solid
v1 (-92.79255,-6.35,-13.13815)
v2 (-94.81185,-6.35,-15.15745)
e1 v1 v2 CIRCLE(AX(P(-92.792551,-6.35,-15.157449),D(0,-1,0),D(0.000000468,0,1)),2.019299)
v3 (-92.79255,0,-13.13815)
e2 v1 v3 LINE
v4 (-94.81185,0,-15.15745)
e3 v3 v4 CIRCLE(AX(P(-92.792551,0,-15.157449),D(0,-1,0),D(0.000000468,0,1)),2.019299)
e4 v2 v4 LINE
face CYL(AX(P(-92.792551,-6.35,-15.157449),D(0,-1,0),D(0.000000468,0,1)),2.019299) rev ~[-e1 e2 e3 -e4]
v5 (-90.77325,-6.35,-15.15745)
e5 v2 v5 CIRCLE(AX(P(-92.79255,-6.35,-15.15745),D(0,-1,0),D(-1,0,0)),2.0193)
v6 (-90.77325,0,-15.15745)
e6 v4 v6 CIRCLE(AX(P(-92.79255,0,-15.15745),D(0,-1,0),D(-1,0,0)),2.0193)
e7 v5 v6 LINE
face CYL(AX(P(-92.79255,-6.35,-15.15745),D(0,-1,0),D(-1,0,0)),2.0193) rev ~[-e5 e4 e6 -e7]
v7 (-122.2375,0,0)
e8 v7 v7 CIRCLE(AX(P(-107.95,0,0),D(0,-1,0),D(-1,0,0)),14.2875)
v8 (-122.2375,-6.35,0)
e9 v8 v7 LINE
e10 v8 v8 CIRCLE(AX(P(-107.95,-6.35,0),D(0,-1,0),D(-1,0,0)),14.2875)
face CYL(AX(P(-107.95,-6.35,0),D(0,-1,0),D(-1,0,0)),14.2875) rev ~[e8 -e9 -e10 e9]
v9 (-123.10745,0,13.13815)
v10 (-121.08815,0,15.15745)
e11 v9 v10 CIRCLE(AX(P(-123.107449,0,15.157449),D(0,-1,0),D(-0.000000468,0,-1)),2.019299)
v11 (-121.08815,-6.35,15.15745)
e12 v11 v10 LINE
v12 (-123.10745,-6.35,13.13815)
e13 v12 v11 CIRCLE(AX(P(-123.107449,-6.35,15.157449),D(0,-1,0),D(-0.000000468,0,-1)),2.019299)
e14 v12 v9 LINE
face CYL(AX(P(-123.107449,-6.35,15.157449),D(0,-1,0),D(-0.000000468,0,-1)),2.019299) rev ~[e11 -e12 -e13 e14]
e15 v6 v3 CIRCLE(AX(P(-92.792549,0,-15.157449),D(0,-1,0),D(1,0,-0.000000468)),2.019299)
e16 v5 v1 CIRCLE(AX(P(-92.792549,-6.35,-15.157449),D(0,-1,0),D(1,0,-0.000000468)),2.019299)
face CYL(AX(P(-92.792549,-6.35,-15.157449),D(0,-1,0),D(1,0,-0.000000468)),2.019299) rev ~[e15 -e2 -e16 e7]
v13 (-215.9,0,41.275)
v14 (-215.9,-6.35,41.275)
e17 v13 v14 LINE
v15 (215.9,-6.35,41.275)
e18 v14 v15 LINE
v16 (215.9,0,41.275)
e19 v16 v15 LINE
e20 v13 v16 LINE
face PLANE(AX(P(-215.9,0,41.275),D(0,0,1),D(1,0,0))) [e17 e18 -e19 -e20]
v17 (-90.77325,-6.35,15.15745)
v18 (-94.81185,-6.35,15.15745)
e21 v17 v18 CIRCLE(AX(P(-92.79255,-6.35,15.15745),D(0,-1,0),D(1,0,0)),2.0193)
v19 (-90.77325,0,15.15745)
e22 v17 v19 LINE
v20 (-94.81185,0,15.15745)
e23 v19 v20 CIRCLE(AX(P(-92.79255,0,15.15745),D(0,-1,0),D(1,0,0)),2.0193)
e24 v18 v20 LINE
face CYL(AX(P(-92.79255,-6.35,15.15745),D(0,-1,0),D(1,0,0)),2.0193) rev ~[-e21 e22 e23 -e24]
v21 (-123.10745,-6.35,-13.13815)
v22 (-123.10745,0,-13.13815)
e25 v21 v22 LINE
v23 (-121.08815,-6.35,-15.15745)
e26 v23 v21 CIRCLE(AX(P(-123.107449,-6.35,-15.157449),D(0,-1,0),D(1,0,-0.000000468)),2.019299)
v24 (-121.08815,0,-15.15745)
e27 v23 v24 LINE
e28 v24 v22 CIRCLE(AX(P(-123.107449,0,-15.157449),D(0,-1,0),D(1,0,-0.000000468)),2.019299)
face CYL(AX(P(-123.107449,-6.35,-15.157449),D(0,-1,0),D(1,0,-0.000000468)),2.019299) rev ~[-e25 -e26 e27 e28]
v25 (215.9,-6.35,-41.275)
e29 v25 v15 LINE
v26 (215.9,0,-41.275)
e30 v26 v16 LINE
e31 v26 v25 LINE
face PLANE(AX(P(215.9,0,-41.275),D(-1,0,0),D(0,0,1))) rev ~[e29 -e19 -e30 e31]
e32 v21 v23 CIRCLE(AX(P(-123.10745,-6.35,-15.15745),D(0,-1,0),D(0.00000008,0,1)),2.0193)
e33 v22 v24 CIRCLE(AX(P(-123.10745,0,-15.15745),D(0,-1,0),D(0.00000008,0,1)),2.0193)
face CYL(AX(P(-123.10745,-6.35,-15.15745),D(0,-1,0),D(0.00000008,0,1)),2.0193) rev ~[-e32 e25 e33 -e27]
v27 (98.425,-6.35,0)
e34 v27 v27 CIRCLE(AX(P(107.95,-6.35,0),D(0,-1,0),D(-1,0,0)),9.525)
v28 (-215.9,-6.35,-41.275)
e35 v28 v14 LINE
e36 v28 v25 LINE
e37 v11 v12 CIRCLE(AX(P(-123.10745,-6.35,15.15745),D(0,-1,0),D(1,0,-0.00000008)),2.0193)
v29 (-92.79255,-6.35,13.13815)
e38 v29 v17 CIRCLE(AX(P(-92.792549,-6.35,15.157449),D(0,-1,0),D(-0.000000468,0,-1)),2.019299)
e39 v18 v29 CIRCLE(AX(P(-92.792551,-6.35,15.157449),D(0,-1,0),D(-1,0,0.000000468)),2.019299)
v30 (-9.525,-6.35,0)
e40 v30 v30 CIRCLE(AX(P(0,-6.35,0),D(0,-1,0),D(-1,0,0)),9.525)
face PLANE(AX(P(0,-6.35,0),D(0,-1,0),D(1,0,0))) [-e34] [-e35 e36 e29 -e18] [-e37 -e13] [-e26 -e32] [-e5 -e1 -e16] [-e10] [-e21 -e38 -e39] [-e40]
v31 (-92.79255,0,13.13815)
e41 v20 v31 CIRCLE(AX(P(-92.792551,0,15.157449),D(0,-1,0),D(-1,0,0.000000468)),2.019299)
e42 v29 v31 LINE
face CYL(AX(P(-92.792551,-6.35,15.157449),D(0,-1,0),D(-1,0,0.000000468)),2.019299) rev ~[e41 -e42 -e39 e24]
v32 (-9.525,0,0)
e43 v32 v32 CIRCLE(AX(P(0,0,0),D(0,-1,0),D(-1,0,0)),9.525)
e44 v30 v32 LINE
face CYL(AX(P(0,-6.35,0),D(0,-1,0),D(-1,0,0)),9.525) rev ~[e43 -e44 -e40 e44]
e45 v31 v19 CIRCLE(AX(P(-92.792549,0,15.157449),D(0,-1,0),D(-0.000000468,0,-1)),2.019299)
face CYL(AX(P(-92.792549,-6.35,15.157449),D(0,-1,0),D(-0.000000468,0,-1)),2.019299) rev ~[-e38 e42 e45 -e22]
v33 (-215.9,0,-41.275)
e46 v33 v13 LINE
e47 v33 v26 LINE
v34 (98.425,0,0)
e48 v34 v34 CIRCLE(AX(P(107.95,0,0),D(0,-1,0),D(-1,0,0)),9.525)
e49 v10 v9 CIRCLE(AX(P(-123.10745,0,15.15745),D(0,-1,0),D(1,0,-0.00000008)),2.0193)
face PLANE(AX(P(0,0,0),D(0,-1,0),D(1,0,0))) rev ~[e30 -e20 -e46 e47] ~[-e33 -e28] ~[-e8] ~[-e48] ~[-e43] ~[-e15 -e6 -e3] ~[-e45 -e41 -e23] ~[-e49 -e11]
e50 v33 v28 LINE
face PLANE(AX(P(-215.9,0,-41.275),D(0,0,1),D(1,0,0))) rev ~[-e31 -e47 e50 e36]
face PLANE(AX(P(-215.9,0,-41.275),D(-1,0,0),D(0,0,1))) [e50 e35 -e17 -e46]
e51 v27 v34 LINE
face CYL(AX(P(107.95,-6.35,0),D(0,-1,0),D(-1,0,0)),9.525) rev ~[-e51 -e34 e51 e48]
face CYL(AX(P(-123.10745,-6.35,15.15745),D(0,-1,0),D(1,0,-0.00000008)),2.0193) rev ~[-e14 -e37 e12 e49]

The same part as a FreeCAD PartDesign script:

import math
import FreeCAD as App
import Part
import Sketcher
Q = App.Units.Quantity

doc = App.newDocument("Part")
body = doc.addObject("PartDesign::Body", "Body")

# Sketch on XZ plane
sketch1 = doc.addObject("Sketcher::SketchObject", "Sketch")
body.addObject(sketch1)
sketch1.AttachmentSupport = (doc.XZ_Plane, [""])
sketch1.MapMode = "FlatFace"
sketch1.addGeometry([
    Part.LineSegment(App.Vector(-215.9, 41.275, 0), App.Vector(-215.9, -41.275, 0)),
    Part.LineSegment(App.Vector(-215.9, -41.275, 0), App.Vector(215.9, -41.275, 0)),
    Part.LineSegment(App.Vector(215.9, -41.275, 0), App.Vector(215.9, 41.275, 0)),
    Part.LineSegment(App.Vector(215.9, 41.275, 0), App.Vector(-215.9, 41.275, 0)),
], False)
sketch1.addConstraint([
    Sketcher.Constraint("Coincident", 0, 2, 1, 1),
    Sketcher.Constraint("Coincident", 1, 2, 2, 1),
    Sketcher.Constraint("Coincident", 2, 2, 3, 1),
    Sketcher.Constraint("Coincident", 3, 2, 0, 1),
    Sketcher.Constraint("Vertical", 0),
    Sketcher.Constraint("Horizontal", 1),
    Sketcher.Constraint("Vertical", 2),
    Sketcher.Constraint("Horizontal", 3),
    Sketcher.Constraint("Symmetric", 0, 2, 2, 2, -1, 1),
    Sketcher.Constraint("DistanceX", 1, 1, 1, 2, Q("17 in")),
    Sketcher.Constraint("DistanceY", 0, 2, 0, 1, Q("3.25 in")),
])
pad1 = doc.addObject("PartDesign::Pad", "Pad")
body.addObject(pad1)
pad1.Profile = sketch1
pad1.Length = Q("0.25 in")

# Sketch on XZ plane
sketch2 = doc.addObject("Sketcher::SketchObject", "Sketch001")
body.addObject(sketch2)
sketch2.AttachmentSupport = (doc.XZ_Plane, [""])
sketch2.MapMode = "FlatFace"
sketch2.AttachmentOffset = App.Placement(App.Vector(0, 0, 0.25 * 25.4), App.Rotation())
sketch2.addGeometry([
    Part.Circle(App.Vector(-107.95, 0, 0), App.Vector(0, 0, 1), 14.2875),
    Part.Circle(App.Vector(107.95, 0, 0), App.Vector(0, 0, 1), 9.525),
    Part.Circle(App.Vector(0, 0, 0), App.Vector(0, 0, 1), 9.525),
], False)
sketch2.addConstraint([
    Sketcher.Constraint("Coincident", 2, 3, -1, 1),
    Sketcher.Constraint("Equal", 1, 2),
    Sketcher.Constraint("Symmetric", 0, 3, 1, 3, -1, 1),
    Sketcher.Constraint("PointOnObject", 0, 3, -1),
    Sketcher.Constraint("Diameter", 1, Q("0.75 in")),
    Sketcher.Constraint("Diameter", 0, Q("1.125 in")),
    Sketcher.Constraint("DistanceX", 0, 3, 1, 3, Q("8.5 in")),
])
pocket1 = doc.addObject("PartDesign::Pocket", "Pocket")
body.addObject(pocket1)
pocket1.Profile = sketch2
pocket1.Type = "ThroughAll"

# Sketch on XZ plane
sketch3 = doc.addObject("Sketcher::SketchObject", "Sketch002")
body.addObject(sketch3)
sketch3.AttachmentSupport = (doc.XZ_Plane, [""])
sketch3.MapMode = "FlatFace"
sketch3.AttachmentOffset = App.Placement(App.Vector(0, 0, 0.25 * 25.4), App.Rotation())
sketch3.addGeometry([
    Part.ArcOfCircle(Part.Circle(App.Vector(-123.10745, -15.15745, 0), App.Vector(0, 0, 1), 2.0193), math.radians(89.999995), math.radians(360.000005)),  # 0
    Part.ArcOfCircle(Part.Circle(App.Vector(-123.107449, -15.157449, 0), App.Vector(0, 0, 1), 2.019299), math.radians(-0.000027), math.radians(90.000027)),  # 1
    Part.ArcOfCircle(Part.Circle(App.Vector(-92.792549, -15.157449, 0), App.Vector(0, 0, 1), 2.019299), math.radians(-0.000027), math.radians(90.000027)),  # 2
    Part.ArcOfCircle(Part.Circle(App.Vector(-92.792551, -15.157449, 0), App.Vector(0, 0, 1), 2.019299), math.radians(89.999973), math.radians(180.000027)),  # 3
    Part.ArcOfCircle(Part.Circle(App.Vector(-92.79255, -15.15745, 0), App.Vector(0, 0, 1), 2.0193), math.radians(180), math.radians(360)),  # 4
    Part.ArcOfCircle(Part.Circle(App.Vector(-92.792551, 15.157449, 0), App.Vector(0, 0, 1), 2.019299), math.radians(179.999973), math.radians(270.000027)),  # 5
    Part.ArcOfCircle(Part.Circle(App.Vector(-92.792549, 15.157449, 0), App.Vector(0, 0, 1), 2.019299), math.radians(-90.000027), math.radians(0.000027)),  # 6
    Part.ArcOfCircle(Part.Circle(App.Vector(-92.79255, 15.15745, 0), App.Vector(0, 0, 1), 2.0193), math.radians(0), math.radians(180)),  # 7
    Part.ArcOfCircle(Part.Circle(App.Vector(-123.107449, 15.157449, 0), App.Vector(0, 0, 1), 2.019299), math.radians(-90.000027), math.radians(0.000027)),  # 8
    Part.ArcOfCircle(Part.Circle(App.Vector(-123.10745, 15.15745, 0), App.Vector(0, 0, 1), 2.0193), math.radians(-0.000005), math.radians(270.000005)),  # 9
], False)
sketch3.addConstraint([
    Sketcher.Constraint("Tangent", 0, 1, 1, 2),
    Sketcher.Constraint("Coincident", 1, 1, 0, 2),
    Sketcher.Constraint("Tangent", 2, 2, 3, 1),
    Sketcher.Constraint("Tangent", 3, 2, 4, 1),
    Sketcher.Constraint("Tangent", 4, 2, 2, 1),
    Sketcher.Constraint("Tangent", 5, 2, 6, 1),
    Sketcher.Constraint("Tangent", 6, 2, 7, 1),
    Sketcher.Constraint("Tangent", 7, 2, 5, 1),
    Sketcher.Constraint("Tangent", 8, 1, 9, 2),
    Sketcher.Constraint("Coincident", 9, 1, 8, 2),
    Sketcher.Constraint("Equal", 1, 2),
    Sketcher.Constraint("Equal", 4, 5),
    Sketcher.Constraint("Equal", 7, 8),
    Sketcher.Constraint("Symmetric", 2, 3, 5, 3, -1),
    Sketcher.Constraint("Symmetric", 0, 3, 8, 3, -1),
    Sketcher.Constraint("Horizontal", 1, 3, 2, 3),
    Sketcher.Constraint("Horizontal", 4, 3, 1, 1),
    Sketcher.Constraint("Horizontal", 1, 1, 3, 2),
    Sketcher.Constraint("Horizontal", 3, 2, 4, 2),
    Sketcher.Constraint("Horizontal", 9, 3, 6, 2),
    Sketcher.Constraint("Horizontal", 6, 2, 7, 2),
    Sketcher.Constraint("Horizontal", 7, 2, 9, 1),
    Sketcher.Constraint("Vertical", 9, 3, 0, 1),
    Sketcher.Constraint("Vertical", 7, 3, 2, 2),
    Sketcher.Constraint("Vertical", 2, 2, 5, 2),
    Sketcher.Constraint("Vertical", 0, 1, 8, 1),
    Sketcher.Constraint("Radius", 0, Q("0.0795 in")),
    Sketcher.Constraint("DistanceY", 0, 1, 8, 3, Q("1.114 in")),
    Sketcher.Constraint("DistanceX", 1, 1, 3, 3, Q("1.114 in")),
    Sketcher.Constraint("DistanceX", 0, 3, -1, 1, 123.10745),
])
pocket2 = doc.addObject("PartDesign::Pocket", "Pocket001")
body.addObject(pocket2)
pocket2.Profile = sketch3
pocket2.Type = "ThroughAll"

doc.recompute()
